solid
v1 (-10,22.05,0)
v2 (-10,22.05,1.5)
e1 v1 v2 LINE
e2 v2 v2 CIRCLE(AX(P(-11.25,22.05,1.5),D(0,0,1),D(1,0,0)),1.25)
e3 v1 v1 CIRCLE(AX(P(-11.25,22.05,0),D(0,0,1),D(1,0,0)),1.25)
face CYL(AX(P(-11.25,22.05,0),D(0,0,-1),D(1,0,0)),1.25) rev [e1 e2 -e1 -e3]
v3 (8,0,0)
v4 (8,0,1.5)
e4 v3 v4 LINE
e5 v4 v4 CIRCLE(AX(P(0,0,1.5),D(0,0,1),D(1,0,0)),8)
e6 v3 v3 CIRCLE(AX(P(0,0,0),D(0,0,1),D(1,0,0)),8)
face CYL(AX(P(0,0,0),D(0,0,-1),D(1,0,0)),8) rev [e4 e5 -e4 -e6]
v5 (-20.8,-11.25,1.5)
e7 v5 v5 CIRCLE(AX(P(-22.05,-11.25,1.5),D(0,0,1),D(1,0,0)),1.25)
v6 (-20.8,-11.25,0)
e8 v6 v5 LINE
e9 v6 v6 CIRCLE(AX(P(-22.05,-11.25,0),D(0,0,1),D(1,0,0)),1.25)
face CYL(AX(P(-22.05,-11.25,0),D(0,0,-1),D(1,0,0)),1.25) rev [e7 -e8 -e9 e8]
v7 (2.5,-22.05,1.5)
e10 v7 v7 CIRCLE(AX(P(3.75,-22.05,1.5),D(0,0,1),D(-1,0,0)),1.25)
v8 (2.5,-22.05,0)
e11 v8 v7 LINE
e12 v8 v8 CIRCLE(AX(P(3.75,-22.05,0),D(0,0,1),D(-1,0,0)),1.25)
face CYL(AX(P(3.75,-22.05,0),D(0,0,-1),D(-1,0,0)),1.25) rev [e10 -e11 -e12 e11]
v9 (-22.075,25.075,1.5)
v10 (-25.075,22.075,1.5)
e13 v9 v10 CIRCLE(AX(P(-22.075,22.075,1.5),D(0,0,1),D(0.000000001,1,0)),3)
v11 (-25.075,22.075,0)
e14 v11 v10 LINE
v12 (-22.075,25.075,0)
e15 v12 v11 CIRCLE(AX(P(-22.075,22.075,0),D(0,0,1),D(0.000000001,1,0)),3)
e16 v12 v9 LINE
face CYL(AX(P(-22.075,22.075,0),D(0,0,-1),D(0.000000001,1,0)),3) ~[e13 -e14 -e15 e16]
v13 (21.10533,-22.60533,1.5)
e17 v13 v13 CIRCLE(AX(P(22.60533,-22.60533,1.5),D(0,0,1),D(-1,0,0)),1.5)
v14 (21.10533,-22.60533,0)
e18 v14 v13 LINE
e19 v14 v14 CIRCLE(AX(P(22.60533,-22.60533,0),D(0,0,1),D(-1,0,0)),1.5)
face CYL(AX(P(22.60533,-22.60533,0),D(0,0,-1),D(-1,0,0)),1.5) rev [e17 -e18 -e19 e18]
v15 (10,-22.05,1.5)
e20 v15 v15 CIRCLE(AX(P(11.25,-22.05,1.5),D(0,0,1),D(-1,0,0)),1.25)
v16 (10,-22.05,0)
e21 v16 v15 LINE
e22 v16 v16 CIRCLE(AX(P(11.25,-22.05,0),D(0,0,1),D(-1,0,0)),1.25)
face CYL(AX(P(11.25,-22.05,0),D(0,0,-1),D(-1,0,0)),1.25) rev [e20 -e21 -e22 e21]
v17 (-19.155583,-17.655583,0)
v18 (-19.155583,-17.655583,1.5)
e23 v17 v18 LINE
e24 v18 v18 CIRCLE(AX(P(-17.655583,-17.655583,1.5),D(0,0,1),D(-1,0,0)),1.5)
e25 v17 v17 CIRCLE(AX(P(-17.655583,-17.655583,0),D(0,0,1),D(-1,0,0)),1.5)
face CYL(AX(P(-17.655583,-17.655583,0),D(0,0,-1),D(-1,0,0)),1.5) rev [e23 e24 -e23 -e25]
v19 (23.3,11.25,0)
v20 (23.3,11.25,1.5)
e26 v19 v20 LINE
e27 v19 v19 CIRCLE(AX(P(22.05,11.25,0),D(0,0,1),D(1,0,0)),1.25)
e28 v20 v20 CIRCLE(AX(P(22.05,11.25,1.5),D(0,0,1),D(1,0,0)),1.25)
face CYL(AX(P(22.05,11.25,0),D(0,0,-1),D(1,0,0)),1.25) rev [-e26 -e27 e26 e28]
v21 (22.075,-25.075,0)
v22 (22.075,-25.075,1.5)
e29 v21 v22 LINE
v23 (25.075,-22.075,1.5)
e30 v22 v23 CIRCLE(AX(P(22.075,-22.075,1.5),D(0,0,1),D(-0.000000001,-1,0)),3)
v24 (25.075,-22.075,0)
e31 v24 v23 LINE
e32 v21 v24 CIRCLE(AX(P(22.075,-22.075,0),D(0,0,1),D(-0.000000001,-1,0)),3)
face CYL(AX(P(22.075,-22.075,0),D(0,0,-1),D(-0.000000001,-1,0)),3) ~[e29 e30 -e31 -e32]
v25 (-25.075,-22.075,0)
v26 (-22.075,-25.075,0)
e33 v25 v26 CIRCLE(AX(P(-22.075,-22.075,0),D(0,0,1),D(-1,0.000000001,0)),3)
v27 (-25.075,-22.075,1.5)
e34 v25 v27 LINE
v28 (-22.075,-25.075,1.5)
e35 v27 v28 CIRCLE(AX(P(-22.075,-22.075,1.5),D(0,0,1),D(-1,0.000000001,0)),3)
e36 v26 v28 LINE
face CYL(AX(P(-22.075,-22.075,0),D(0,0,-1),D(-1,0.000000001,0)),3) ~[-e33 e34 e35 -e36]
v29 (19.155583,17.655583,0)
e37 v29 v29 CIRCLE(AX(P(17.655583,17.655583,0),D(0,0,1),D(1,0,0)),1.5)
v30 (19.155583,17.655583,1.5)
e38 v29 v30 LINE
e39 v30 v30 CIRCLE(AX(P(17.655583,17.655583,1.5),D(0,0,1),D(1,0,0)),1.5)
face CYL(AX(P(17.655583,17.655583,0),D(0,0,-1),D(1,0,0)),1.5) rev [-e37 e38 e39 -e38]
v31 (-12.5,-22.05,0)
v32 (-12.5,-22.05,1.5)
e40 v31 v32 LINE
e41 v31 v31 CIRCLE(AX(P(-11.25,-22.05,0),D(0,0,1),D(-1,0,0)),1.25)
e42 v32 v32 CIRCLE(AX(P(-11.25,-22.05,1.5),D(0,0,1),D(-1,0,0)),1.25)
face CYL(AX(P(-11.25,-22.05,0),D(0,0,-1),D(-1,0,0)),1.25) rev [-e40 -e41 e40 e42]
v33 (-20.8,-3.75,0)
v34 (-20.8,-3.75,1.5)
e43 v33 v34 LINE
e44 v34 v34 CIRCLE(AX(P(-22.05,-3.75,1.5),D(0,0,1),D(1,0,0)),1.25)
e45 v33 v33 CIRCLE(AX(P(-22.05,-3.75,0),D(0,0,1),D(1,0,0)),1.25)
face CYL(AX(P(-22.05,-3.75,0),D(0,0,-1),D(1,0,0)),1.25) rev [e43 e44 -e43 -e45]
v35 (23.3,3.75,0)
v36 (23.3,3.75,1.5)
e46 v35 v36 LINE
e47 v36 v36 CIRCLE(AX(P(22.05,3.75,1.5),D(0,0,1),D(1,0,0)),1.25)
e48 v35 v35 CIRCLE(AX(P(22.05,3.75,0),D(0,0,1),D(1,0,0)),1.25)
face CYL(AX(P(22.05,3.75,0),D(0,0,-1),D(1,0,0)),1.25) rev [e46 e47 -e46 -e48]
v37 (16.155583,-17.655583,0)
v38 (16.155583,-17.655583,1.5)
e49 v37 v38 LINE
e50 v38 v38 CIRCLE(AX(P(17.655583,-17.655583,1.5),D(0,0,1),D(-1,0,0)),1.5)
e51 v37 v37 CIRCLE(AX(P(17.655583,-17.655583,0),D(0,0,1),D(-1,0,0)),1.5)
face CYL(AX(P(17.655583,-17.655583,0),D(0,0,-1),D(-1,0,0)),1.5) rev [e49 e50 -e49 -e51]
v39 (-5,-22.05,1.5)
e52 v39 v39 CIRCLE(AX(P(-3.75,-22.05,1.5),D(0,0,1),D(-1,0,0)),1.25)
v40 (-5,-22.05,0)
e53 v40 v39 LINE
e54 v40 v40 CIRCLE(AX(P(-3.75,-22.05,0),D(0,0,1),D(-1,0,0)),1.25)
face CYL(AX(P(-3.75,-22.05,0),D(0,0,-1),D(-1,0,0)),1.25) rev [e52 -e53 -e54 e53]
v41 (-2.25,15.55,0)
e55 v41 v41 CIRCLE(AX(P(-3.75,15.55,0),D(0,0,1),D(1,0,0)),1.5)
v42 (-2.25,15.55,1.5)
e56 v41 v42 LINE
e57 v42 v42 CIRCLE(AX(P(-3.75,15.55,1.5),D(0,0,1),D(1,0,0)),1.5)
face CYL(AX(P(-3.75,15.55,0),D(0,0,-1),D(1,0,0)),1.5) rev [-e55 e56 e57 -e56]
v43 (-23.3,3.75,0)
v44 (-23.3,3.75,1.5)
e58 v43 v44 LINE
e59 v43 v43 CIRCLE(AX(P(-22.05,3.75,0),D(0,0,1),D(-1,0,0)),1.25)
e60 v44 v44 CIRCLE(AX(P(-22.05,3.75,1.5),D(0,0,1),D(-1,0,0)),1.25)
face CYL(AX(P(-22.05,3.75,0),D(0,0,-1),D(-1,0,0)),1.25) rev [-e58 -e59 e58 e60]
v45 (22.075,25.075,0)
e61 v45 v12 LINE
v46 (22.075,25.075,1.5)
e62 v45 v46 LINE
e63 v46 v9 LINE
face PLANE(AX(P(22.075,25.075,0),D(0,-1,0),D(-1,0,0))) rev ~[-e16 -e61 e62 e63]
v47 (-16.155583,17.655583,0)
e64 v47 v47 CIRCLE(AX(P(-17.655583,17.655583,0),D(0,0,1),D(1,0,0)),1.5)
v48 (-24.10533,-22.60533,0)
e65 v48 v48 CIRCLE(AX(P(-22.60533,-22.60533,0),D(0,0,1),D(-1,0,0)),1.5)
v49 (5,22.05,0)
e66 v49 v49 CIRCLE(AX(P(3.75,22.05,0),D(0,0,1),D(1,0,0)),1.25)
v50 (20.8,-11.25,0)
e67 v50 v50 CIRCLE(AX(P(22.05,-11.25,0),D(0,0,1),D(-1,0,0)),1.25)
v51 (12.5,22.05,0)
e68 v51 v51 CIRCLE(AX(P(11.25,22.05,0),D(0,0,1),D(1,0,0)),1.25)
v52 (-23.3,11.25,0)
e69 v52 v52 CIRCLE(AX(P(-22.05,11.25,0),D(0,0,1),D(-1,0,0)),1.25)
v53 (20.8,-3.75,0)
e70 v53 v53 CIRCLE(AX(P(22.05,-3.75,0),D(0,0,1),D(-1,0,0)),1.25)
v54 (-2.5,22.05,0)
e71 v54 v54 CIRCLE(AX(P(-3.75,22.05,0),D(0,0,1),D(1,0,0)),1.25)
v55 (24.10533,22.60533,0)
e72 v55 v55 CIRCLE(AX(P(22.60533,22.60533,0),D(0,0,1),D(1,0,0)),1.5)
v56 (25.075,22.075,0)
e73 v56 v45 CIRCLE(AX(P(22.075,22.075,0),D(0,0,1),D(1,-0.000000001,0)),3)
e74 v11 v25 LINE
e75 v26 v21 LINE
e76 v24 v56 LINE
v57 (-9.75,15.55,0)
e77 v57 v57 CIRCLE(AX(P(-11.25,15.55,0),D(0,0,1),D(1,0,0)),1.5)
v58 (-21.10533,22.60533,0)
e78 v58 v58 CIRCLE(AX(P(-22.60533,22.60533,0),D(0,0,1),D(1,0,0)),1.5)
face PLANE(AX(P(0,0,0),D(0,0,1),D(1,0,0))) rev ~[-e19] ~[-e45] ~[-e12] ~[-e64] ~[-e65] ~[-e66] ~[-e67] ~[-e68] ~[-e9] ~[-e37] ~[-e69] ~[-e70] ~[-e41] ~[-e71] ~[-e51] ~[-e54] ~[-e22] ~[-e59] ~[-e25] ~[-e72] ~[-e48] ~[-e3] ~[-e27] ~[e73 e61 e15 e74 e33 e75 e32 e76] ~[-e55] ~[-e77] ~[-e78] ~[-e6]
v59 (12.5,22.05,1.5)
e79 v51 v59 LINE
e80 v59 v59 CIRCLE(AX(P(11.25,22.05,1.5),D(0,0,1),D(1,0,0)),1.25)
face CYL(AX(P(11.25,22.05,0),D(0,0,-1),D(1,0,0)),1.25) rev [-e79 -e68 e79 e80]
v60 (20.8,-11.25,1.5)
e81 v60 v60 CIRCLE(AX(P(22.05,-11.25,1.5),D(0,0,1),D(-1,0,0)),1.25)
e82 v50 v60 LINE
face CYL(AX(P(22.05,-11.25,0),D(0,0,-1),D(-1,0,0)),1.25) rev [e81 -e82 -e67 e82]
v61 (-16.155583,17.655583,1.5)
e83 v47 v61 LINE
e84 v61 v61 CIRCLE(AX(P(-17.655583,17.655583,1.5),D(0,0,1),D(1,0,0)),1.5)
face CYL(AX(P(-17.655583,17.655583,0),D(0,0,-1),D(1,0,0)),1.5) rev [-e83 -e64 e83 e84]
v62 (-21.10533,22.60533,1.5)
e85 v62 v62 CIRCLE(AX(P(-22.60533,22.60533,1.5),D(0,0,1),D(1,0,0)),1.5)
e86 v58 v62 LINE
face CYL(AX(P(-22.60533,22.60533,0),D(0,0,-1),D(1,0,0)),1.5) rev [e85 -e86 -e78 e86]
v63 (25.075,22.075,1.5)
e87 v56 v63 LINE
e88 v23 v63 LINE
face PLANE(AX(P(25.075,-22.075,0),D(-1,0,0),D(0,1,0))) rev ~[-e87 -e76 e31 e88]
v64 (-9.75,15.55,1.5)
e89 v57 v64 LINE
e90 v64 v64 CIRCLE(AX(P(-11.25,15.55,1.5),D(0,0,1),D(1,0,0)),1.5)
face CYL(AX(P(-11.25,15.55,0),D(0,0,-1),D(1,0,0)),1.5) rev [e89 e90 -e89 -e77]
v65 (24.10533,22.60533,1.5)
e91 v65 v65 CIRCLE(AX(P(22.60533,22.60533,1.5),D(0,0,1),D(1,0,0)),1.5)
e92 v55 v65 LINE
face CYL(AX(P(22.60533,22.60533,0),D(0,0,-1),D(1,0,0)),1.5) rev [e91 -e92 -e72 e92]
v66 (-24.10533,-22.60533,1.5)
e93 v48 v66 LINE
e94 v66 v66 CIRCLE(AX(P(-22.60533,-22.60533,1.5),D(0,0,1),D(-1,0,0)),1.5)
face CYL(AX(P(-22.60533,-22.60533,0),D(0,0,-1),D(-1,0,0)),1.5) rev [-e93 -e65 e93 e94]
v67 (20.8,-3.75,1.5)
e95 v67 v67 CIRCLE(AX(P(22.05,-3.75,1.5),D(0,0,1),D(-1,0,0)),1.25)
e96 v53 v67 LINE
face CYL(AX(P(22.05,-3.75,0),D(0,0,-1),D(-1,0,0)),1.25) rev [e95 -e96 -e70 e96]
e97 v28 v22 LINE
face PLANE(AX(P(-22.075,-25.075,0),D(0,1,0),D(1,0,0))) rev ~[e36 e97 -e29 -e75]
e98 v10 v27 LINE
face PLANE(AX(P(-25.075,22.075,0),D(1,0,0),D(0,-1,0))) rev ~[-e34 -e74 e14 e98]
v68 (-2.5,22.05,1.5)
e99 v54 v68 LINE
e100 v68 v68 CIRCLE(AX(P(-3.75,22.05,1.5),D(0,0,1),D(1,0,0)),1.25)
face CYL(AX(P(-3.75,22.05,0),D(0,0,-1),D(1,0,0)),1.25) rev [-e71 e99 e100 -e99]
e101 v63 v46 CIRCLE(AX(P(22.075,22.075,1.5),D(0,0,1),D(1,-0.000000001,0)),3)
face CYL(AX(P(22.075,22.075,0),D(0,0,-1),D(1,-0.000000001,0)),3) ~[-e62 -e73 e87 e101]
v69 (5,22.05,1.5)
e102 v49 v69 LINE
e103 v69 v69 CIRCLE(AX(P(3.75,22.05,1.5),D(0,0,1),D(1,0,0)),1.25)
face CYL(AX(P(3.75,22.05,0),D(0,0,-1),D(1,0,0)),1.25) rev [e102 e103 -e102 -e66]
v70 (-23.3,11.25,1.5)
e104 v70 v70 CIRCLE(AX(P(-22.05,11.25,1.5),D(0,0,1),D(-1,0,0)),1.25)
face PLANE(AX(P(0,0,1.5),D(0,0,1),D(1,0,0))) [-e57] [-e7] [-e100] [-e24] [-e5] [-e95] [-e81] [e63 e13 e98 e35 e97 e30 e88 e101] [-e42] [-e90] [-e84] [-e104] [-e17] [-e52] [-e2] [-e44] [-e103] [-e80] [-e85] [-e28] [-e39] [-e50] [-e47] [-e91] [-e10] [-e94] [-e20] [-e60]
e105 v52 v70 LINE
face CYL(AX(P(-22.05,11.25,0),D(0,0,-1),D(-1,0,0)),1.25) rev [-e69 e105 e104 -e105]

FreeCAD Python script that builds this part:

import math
import FreeCAD as App
import Part
import Sketcher
Q = App.Units.Quantity

doc = App.newDocument("Part")
body = doc.addObject("PartDesign::Body", "Body")

# Sketch on XY plane
sketch1 = doc.addObject("Sketcher::SketchObject", "Sketch")
body.addObject(sketch1)
sketch1.AttachmentSupport = (doc.XY_Plane, [""])
sketch1.MapMode = "FlatFace"
sketch1.addGeometry([
    Part.LineSegment(App.Vector(-22.1, -25.1, 0), App.Vector(22.1, -25.1, 0)),  # 0
    Part.ArcOfCircle(Part.Circle(App.Vector(22.1, -22.1, 0), App.Vector(0, 0, 1), 3), math.radians(-90), math.radians(0)),  # 1
    Part.LineSegment(App.Vector(25.1, -22.1, 0), App.Vector(25.1, 22.1, 0)),  # 2
    Part.ArcOfCircle(Part.Circle(App.Vector(22.1, 22.1, 0), App.Vector(0, 0, 1), 3), math.radians(0), math.radians(90)),  # 3
    Part.LineSegment(App.Vector(22.1, 25.1, 0), App.Vector(-22.1, 25.1, 0)),  # 4
    Part.ArcOfCircle(Part.Circle(App.Vector(-22.1, 22.1, 0), App.Vector(0, 0, 1), 3), math.radians(90), math.radians(180)),  # 5
    Part.LineSegment(App.Vector(-25.1, 22.1, 0), App.Vector(-25.1, -22.1, 0)),  # 6
    Part.ArcOfCircle(Part.Circle(App.Vector(-22.1, -22.1, 0), App.Vector(0, 0, 1), 3), math.radians(180), math.radians(270)),  # 7
    Part.Circle(App.Vector(-22.6, -22.6, 0), App.Vector(0, 0, 1), 1.5),  # 8
    Part.Circle(App.Vector(-17.7, -17.7, 0), App.Vector(0, 0, 1), 1.5),  # 9
    Part.Circle(App.Vector(-11.2, -22.1, 0), App.Vector(0, 0, 1), 1.2),  # 10
    Part.Circle(App.Vector(-3.8, -22.1, 0), App.Vector(0, 0, 1), 1.2),  # 11
    Part.Circle(App.Vector(-22.1, -11.2, 0), App.Vector(0, 0, 1), 1.2),  # 12
    Part.Circle(App.Vector(-22.1, -3.8, 0), App.Vector(0, 0, 1), 1.2),  # 13
    Part.Circle(App.Vector(0, 0, 0), App.Vector(0, 0, 1), 8),  # 14
    Part.Circle(App.Vector(3.8, -22.1, 0), App.Vector(0, 0, 1), 1.2),  # 15
    Part.Circle(App.Vector(11.2, -22.1, 0), App.Vector(0, 0, 1), 1.2),  # 16
    Part.Circle(App.Vector(22.6, -22.6, 0), App.Vector(0, 0, 1), 1.5),  # 17
    Part.Circle(App.Vector(17.7, -17.7, 0), App.Vector(0, 0, 1), 1.5),  # 18
    Part.Circle(App.Vector(22.1, -11.2, 0), App.Vector(0, 0, 1), 1.2),  # 19
    Part.Circle(App.Vector(22.1, -3.8, 0), App.Vector(0, 0, 1), 1.2),  # 20
    Part.Circle(App.Vector(-22.1, 3.8, 0), App.Vector(0, 0, 1), 1.2),  # 21
    Part.Circle(App.Vector(-22.1, 11.2, 0), App.Vector(0, 0, 1), 1.2),  # 22
    Part.Circle(App.Vector(-17.7, 17.7, 0), App.Vector(0, 0, 1), 1.5),  # 23
    Part.Circle(App.Vector(-22.6, 22.6, 0), App.Vector(0, 0, 1), 1.5),  # 24
    Part.Circle(App.Vector(-11.2, 15.6, 0), App.Vector(0, 0, 1), 1.5),  # 25
    Part.Circle(App.Vector(-3.8, 15.6, 0), App.Vector(0, 0, 1), 1.5),  # 26
    Part.Circle(App.Vector(-11.2, 22.1, 0), App.Vector(0, 0, 1), 1.2),  # 27
    Part.Circle(App.Vector(-3.8, 22.1, 0), App.Vector(0, 0, 1), 1.2),  # 28
    Part.Circle(App.Vector(22.1, 3.8, 0), App.Vector(0, 0, 1), 1.2),  # 29
    Part.Circle(App.Vector(22.1, 11.2, 0), App.Vector(0, 0, 1), 1.2),  # 30
    Part.Circle(App.Vector(3.8, 22.1, 0), App.Vector(0, 0, 1), 1.2),  # 31
    Part.Circle(App.Vector(11.2, 22.1, 0), App.Vector(0, 0, 1), 1.2),  # 32
    Part.Circle(App.Vector(17.7, 17.7, 0), App.Vector(0, 0, 1), 1.5),  # 33
    Part.Circle(App.Vector(22.6, 22.6, 0), App.Vector(0, 0, 1), 1.5),  # 34
], False)
sketch1.addConstraint([
    Sketcher.Constraint("Tangent", 0, 2, 1, 1),
    Sketcher.Constraint("Tangent", 1, 2, 2, 1),
    Sketcher.Constraint("Tangent", 2, 2, 3, 1),
    Sketcher.Constraint("Tangent", 3, 2, 4, 1),
    Sketcher.Constraint("Tangent", 4, 2, 5, 1),
    Sketcher.Constraint("Tangent", 5, 2, 6, 1),
    Sketcher.Constraint("Tangent", 6, 2, 7, 1),
    Sketcher.Constraint("Tangent", 7, 2, 0, 1),
    Sketcher.Constraint("Horizontal", 0),
    Sketcher.Constraint("Vertical", 2),
    Sketcher.Constraint("Horizontal", 4),
    Sketcher.Constraint("Vertical", 6),
    Sketcher.Constraint("Coincident", 14, 3, -1, 1),
    Sketcher.Constraint("Equal", 1, 3),
    Sketcher.Constraint("Equal", 3, 5),
    Sketcher.Constraint("Equal", 5, 7),
    Sketcher.Constraint("Equal", 8, 9),
    Sketcher.Constraint("Equal", 10, 11),
    Sketcher.Constraint("Equal", 11, 12),
    Sketcher.Constraint("Equal", 12, 13),
    Sketcher.Constraint("Equal", 13, 15),
    Sketcher.Constraint("Equal", 15, 16),
    Sketcher.Constraint("Equal", 9, 17),
    Sketcher.Constraint("Equal", 17, 18),
    Sketcher.Constraint("Equal", 16, 19),
    Sketcher.Constraint("Equal", 19, 20),
    Sketcher.Constraint("Equal", 20, 21),
    Sketcher.Constraint("Equal", 21, 22),
    Sketcher.Constraint("Equal", 18, 23),
    Sketcher.Constraint("Equal", 23, 24),
    Sketcher.Constraint("Equal", 24, 25),
    Sketcher.Constraint("Equal", 25, 26),
    Sketcher.Constraint("Equal", 22, 27),
    Sketcher.Constraint("Equal", 27, 28),
    Sketcher.Constraint("Equal", 28, 29),
    Sketcher.Constraint("Equal", 29, 30),
    Sketcher.Constraint("Equal", 30, 31),
    Sketcher.Constraint("Equal", 31, 32),
    Sketcher.Constraint("Equal", 26, 33),
    Sketcher.Constraint("Equal", 33, 34),
    Sketcher.Constraint("Symmetric", 1, 3, 5, 3, -1, 1),
    Sketcher.Constraint("Symmetric", 20, 3, 21, 3, -1, 1),
    Sketcher.Constraint("Symmetric", 19, 3, 22, 3, -1, 1),
    Sketcher.Constraint("Symmetric", 18, 3, 23, 3, -1, 1),
    Sketcher.Constraint("Symmetric", 17, 3, 24, 3, -1, 1),
    Sketcher.Constraint("Symmetric", 16, 3, 27, 3, -1, 1),
    Sketcher.Constraint("Symmetric", 15, 3, 28, 3, -1, 1),
    Sketcher.Constraint("Symmetric", 13, 3, 29, 3, -1, 1),
    Sketcher.Constraint("Symmetric", 12, 3, 30, 3, -1, 1),
    Sketcher.Constraint("Symmetric", 11, 3, 31, 3, -1, 1),
    Sketcher.Constraint("Symmetric", 10, 3, 32, 3, -1, 1),
    Sketcher.Constraint("Symmetric", 9, 3, 33, 3, -1, 1),
    Sketcher.Constraint("Symmetric", 8, 3, 34, 3, -1, 1),
    Sketcher.Constraint("Symmetric", 11, 3, 15, 3, -2),
    Sketcher.Constraint("Symmetric", 10, 3, 16, 3, -2),
    Sketcher.Constraint("Symmetric", 8, 3, 17, 3, -2),
    Sketcher.Constraint("Symmetric", 9, 3, 18, 3, -2),
    Sketcher.Constraint("Symmetric", 12, 3, 19, 3, -2),
    Sketcher.Constraint("Symmetric", 13, 3, 20, 3, -2),
    Sketcher.Constraint("Horizontal", 10, 3, 11, 3),
    Sketcher.Constraint("Horizontal", 25, 3, 26, 3),
    Sketcher.Constraint("Vertical", 12, 3, 13, 3),
    Sketcher.Constraint("Vertical", 10, 3, 25, 3),
    Sketcher.Constraint("Vertical", 11, 3, 26, 3),
    Sketcher.Constraint("Equal", 4, 2),
    Sketcher.Constraint("Diameter", 8, Q("3 mm")),
    Sketcher.Constraint("Diameter", 14, Q("16 mm")),
    Sketcher.Constraint("Radius", 1, Q("3 mm")),
    Sketcher.Constraint("Diameter", 10, Q("2.5 mm")),
    Sketcher.Constraint("DistanceX", 10, 3, 15, 3, Q("15 mm")),
    Sketcher.Constraint("DistanceY", 12, 3, 21, 3, Q("15 mm")),
    Sketcher.Constraint("DistanceX", 0, 1, 0, 2, Q("44.15 mm")),
    Sketcher.Constraint("DistanceX", 10, 3, 11, 3, Q("7.5 mm")),
    Sketcher.Constraint("DistanceX", 12, 3, 10, 3, Q("10.8 mm")),
    Sketcher.Constraint("DistanceY", 10, 3, 12, 3, Q("10.8 mm")),
    Sketcher.Constraint("DistanceY", 12, 3, 13, 3, Q("7.5 mm")),
    Sketcher.Constraint("DistanceY", 22, 3, 25, 3, Q("4.3 mm")),
    Sketcher.Constraint("DistanceX", 8, 3, -1, 1, Q("22.60533 mm")),
    Sketcher.Constraint("DistanceY", 8, 3, -1, 1, Q("22.60533 mm")),
    Sketcher.Constraint("DistanceX", 9, 3, -1, 1, Q("17.655583 mm")),
    Sketcher.Constraint("DistanceY", 9, 3, -1, 1, Q("17.655583 mm")),
])
pad1 = doc.addObject("PartDesign::Pad", "Pad")
body.addObject(pad1)
pad1.Profile = sketch1
pad1.Length = 1.5

doc.recompute()
